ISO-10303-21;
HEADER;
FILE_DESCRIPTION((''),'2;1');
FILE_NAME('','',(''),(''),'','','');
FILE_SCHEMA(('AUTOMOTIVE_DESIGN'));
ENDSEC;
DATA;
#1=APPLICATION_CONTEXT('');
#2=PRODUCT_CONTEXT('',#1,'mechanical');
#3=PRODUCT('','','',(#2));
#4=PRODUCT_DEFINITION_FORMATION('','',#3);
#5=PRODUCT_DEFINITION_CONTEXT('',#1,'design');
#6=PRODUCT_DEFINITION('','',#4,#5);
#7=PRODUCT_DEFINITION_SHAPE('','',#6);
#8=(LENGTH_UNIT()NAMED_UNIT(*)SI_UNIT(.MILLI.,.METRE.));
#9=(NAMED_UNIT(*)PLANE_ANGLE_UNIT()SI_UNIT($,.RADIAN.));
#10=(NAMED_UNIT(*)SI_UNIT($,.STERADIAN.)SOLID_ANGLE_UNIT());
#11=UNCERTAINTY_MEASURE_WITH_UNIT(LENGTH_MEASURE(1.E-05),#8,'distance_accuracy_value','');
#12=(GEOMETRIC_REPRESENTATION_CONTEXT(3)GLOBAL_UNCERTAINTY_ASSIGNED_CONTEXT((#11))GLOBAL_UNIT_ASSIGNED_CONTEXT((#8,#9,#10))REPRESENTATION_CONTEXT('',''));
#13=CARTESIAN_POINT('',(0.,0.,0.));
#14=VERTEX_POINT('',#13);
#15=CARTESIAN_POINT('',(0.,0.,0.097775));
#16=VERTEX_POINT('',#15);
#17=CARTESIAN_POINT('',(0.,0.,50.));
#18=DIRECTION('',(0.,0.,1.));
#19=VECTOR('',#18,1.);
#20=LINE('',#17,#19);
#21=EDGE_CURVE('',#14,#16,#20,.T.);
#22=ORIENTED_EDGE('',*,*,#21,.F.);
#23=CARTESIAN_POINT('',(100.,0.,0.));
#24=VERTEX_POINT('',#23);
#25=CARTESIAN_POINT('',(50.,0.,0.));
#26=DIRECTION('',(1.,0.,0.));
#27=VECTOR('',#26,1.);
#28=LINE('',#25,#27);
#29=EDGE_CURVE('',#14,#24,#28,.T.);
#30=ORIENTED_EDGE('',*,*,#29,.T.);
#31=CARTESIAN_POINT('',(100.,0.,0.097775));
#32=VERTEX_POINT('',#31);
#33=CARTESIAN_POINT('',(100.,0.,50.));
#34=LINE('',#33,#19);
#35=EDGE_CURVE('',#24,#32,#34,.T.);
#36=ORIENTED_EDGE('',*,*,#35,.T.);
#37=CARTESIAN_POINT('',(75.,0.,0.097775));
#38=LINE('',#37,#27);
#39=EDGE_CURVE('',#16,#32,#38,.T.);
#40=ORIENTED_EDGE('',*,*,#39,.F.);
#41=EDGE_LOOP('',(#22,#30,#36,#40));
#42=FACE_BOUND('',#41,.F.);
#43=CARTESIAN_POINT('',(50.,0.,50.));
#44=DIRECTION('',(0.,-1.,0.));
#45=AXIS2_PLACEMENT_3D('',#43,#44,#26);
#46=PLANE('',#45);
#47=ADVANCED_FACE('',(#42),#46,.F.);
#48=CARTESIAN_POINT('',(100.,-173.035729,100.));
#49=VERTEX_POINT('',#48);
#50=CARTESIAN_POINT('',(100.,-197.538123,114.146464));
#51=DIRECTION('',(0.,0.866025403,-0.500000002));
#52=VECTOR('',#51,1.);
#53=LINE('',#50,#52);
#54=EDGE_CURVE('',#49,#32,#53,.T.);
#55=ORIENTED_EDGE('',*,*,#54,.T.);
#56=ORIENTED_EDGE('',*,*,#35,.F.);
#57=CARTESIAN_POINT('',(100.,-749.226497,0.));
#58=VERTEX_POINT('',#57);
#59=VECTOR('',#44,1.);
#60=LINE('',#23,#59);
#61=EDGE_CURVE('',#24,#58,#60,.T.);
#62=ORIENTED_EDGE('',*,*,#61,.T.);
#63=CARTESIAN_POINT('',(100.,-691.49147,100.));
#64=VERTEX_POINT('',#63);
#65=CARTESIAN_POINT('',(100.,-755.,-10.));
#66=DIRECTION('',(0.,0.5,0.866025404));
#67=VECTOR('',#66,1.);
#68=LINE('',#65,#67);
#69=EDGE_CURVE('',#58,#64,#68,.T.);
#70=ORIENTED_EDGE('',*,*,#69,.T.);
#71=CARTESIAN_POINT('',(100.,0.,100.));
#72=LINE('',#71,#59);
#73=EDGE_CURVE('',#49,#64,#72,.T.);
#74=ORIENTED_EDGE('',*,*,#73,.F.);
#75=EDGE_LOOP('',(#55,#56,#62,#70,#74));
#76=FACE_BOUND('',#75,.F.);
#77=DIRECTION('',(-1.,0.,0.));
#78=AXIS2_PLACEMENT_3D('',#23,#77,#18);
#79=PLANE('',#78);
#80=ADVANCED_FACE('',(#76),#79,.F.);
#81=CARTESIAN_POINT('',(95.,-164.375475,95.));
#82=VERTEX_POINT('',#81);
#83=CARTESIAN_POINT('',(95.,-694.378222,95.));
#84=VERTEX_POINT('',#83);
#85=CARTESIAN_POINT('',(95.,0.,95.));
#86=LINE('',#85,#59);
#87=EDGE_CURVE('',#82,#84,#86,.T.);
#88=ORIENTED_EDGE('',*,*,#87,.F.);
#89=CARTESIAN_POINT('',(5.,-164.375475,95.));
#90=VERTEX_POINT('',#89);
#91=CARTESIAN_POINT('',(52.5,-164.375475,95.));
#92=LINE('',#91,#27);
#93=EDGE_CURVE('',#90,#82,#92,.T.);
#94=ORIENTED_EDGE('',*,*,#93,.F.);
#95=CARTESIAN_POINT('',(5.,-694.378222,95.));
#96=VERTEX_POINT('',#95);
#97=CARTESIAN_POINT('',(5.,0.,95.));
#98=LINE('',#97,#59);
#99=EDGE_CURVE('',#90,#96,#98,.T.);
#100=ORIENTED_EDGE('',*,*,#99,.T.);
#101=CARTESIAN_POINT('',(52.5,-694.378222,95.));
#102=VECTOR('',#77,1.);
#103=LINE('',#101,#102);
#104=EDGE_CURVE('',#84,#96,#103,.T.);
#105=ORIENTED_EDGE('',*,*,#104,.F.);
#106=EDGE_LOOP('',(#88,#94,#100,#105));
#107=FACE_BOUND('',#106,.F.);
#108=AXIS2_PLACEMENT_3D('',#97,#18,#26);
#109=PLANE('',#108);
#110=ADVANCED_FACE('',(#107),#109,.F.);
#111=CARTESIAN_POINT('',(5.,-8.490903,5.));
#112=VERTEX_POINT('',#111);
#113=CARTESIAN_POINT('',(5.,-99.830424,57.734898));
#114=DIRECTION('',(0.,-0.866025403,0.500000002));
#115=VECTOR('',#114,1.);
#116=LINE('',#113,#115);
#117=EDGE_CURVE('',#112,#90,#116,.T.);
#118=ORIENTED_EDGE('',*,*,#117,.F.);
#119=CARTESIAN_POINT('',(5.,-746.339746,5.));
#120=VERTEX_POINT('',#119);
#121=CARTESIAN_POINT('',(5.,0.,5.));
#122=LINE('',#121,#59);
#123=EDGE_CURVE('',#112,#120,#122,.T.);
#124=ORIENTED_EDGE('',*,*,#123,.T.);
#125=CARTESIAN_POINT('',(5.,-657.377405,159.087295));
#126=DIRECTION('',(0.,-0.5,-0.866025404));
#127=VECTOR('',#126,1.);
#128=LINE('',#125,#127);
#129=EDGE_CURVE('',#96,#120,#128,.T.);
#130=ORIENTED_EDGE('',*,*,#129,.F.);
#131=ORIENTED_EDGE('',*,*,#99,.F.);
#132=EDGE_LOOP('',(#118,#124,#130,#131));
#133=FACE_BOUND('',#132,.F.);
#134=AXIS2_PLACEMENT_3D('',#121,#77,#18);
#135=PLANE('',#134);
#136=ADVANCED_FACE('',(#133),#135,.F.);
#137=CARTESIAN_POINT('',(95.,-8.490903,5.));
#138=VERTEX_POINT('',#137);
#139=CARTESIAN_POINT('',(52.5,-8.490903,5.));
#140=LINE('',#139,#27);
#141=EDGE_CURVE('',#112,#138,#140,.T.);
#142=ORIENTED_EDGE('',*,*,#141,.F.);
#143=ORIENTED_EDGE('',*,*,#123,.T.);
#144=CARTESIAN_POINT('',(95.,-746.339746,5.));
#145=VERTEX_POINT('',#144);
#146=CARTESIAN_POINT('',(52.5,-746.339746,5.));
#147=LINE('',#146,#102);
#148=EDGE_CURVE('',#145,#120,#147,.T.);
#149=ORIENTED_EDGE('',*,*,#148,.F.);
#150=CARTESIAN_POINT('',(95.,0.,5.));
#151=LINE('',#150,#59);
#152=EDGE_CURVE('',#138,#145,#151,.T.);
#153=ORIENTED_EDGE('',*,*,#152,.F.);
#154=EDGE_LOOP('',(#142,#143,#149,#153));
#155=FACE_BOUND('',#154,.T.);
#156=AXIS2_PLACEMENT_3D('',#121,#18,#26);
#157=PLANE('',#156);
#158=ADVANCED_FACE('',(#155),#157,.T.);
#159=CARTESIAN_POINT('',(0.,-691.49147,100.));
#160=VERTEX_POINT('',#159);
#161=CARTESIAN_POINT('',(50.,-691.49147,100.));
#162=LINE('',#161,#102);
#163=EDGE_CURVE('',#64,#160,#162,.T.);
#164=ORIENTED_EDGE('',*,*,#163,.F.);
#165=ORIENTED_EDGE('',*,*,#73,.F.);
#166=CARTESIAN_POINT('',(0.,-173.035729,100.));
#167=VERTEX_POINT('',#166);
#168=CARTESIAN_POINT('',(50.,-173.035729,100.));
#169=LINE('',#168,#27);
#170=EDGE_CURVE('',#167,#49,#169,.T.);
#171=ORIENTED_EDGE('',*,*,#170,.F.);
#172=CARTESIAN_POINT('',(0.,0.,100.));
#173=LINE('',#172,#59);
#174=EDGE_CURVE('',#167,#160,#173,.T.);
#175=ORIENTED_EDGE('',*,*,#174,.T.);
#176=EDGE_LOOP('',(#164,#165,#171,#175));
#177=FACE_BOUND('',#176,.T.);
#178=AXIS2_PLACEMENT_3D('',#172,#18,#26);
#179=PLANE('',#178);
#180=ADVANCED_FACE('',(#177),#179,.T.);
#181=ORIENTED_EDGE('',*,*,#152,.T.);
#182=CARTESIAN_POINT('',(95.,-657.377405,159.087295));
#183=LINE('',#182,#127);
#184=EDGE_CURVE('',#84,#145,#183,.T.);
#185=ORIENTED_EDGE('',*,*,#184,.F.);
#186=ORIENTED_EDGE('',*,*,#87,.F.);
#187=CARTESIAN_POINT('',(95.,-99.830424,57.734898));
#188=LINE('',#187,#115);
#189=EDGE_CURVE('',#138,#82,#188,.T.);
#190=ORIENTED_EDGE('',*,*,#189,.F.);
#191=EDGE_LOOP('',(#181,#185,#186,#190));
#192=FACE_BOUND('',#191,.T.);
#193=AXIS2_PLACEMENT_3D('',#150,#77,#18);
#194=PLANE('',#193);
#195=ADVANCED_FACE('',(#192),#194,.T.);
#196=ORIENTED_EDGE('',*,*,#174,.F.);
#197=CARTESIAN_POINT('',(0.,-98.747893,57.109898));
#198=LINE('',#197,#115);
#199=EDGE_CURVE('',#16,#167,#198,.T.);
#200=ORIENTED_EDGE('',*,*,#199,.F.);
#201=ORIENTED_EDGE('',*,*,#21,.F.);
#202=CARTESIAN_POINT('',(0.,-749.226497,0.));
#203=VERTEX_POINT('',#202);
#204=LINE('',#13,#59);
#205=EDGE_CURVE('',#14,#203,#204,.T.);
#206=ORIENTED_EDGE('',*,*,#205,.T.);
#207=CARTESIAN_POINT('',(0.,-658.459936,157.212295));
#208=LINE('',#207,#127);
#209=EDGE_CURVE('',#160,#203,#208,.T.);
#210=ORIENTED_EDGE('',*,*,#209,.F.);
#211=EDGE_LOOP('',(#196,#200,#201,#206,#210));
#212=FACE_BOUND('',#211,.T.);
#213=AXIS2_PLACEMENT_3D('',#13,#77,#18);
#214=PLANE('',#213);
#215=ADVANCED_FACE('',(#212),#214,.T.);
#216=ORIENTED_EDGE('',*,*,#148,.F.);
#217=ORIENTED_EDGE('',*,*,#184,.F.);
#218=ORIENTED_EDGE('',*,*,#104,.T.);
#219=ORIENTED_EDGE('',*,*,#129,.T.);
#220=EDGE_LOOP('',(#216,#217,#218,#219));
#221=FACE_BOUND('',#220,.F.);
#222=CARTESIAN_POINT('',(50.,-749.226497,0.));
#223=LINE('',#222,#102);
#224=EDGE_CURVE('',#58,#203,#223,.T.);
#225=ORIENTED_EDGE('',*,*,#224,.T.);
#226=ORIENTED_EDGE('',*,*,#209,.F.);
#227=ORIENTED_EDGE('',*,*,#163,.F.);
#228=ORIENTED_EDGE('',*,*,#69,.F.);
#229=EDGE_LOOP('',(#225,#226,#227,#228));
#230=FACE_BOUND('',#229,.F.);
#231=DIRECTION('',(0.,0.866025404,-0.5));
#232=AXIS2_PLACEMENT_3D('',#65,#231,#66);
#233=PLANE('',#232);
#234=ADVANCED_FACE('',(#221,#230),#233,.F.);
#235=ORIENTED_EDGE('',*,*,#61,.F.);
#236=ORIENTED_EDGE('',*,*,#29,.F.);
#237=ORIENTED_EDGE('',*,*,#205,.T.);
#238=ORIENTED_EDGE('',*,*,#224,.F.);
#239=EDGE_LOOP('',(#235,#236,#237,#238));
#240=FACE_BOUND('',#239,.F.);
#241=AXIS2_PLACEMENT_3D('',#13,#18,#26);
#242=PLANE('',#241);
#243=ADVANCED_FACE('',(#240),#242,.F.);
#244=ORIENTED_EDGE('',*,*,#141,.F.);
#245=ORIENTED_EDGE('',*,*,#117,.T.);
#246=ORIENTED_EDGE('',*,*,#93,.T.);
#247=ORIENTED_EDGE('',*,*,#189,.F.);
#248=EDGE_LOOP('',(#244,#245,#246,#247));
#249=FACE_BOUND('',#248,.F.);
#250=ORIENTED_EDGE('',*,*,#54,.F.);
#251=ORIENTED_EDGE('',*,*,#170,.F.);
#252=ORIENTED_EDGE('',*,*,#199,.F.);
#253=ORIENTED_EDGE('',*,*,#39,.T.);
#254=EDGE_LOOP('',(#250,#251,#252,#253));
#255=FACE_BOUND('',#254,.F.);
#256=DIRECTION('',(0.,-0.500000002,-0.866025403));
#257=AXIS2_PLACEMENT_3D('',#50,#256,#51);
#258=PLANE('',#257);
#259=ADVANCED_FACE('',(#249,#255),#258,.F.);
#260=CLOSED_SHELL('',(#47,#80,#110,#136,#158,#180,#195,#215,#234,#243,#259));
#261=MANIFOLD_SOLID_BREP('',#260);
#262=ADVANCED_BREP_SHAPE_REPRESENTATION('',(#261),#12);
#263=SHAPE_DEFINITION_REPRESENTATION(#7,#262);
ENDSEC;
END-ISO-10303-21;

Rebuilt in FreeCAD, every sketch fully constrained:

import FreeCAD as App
import Part
import Sketcher

V = App.Vector
Q = App.Units.Quantity

doc = App.newDocument("Part")
body = doc.addObject("PartDesign::Body", "Body")

# Sketch on XZ plane
sketch1 = body.newObject("Sketcher::SketchObject", "Sketch")
sketch1.AttachmentSupport = (doc.getObject("XZ_Plane"), [""])
sketch1.MapMode = "FlatFace"
sketch1.addGeometry([
    Part.LineSegment(V(0, 100, 0), V(0, 0, 0)),  # 0
    Part.LineSegment(V(0, 0, 0), V(100, 0, 0)),  # 1
    Part.LineSegment(V(100, 0, 0), V(100, 100, 0)),  # 2
    Part.LineSegment(V(100, 100, 0), V(0, 100, 0)),  # 3
    Part.LineSegment(V(95, 5, 0), V(5, 5, 0)),  # 4
    Part.LineSegment(V(5, 5, 0), V(5, 95, 0)),  # 5
    Part.LineSegment(V(5, 95, 0), V(95, 95, 0)),  # 6
    Part.LineSegment(V(95, 95, 0), V(95, 5, 0)),  # 7
], False)
sketch1.addConstraint([
    Sketcher.Constraint("Coincident", 0, 2, 1, 1),
    Sketcher.Constraint("Coincident", 1, 2, 2, 1),
    Sketcher.Constraint("Coincident", 2, 2, 3, 1),
    Sketcher.Constraint("Coincident", 3, 2, 0, 1),
    Sketcher.Constraint("Coincident", 4, 2, 5, 1),
    Sketcher.Constraint("Coincident", 5, 2, 6, 1),
    Sketcher.Constraint("Coincident", 6, 2, 7, 1),
    Sketcher.Constraint("Coincident", 7, 2, 4, 1),
    Sketcher.Constraint("Vertical", 0),
    Sketcher.Constraint("Horizontal", 1),
    Sketcher.Constraint("Vertical", 2),
    Sketcher.Constraint("Horizontal", 3),
    Sketcher.Constraint("Horizontal", 4),
    Sketcher.Constraint("Vertical", 5),
    Sketcher.Constraint("Horizontal", 6),
    Sketcher.Constraint("Vertical", 7),
    Sketcher.Constraint("Coincident", 0, 2, -1, 1),
    Sketcher.Constraint("Equal", 3, 0),
    Sketcher.Constraint("Equal", 6, 5),
    Sketcher.Constraint("DistanceX", 1, 1, 1, 2, 100.0),
    Sketcher.Constraint("DistanceX", 4, 2, 4, 1, 90.0),
    Sketcher.Constraint("DistanceX", -1, 1, 4, 2, 5.0),
    Sketcher.Constraint("DistanceY", -1, 1, 4, 2, 5.0),
])
pad1 = body.newObject("PartDesign::Pad", "Pad")
pad1.Profile = sketch1
pad1.Length = 750

# Sketch on YZ plane
sketch2 = body.newObject("Sketcher::SketchObject", "Sketch001")
sketch2.AttachmentSupport = (doc.getObject("YZ_Plane"), [""])
sketch2.MapMode = "FlatFace"
sketch2.AttachmentOffset = App.Placement(V(0, 0, 100), App.Rotation())
sketch2.addGeometry([
    Part.LineSegment(V(-680, 120, 0), V(-755, 120, 0)),
    Part.LineSegment(V(-755, 120, 0), V(-755, -10, 0)),
    Part.LineSegment(V(-755, -10, 0), V(-680, 120, 0)),
], False)
sketch2.addConstraint([
    Sketcher.Constraint("Coincident", 0, 2, 1, 1),
    Sketcher.Constraint("Coincident", 1, 2, 2, 1),
    Sketcher.Constraint("Coincident", 2, 2, 0, 1),
    Sketcher.Constraint("Horizontal", 0),
    Sketcher.Constraint("Vertical", 1),
    Sketcher.Constraint("DistanceY", 1, 2, 1, 1, 130.0),
    Sketcher.Constraint("Angle", 2, Q("60 deg")),
    Sketcher.Constraint("DistanceX", 0, 2, -1, 1, 755.0),
    Sketcher.Constraint("DistanceY", -1, 1, 0, 2, 120.0),
])
pocket1 = body.newObject("PartDesign::Pocket", "Pocket")
pocket1.Profile = sketch2
pocket1.Type = "ThroughAll"

# Sketch on YZ plane
sketch3 = body.newObject("Sketcher::SketchObject", "Sketch002")
sketch3.AttachmentSupport = (doc.getObject("YZ_Plane"), [""])
sketch3.MapMode = "FlatFace"
sketch3.AttachmentOffset = App.Placement(V(0, 0, 100), App.Rotation())
sketch3.addGeometry([
    Part.LineSegment(V(0, 114, 0), V(-198, 114, 0)),
    Part.LineSegment(V(-198, 114, 0), V(0, 0, 0)),
    Part.LineSegment(V(0, 0, 0), V(0, 114, 0)),
], False)
sketch3.addConstraint([
    Sketcher.Constraint("Coincident", 0, 2, 1, 1),
    Sketcher.Constraint("Coincident", 1, 2, 2, 1),
    Sketcher.Constraint("Coincident", 2, 2, 0, 1),
    Sketcher.Constraint("Horizontal", 0),
    Sketcher.Constraint("Vertical", 2),
    Sketcher.Constraint("Angle", 1, Q("-30 deg")),
    Sketcher.Constraint("DistanceY", 2, 1, 2, 2, 114.130241),
    Sketcher.Constraint("DistanceX", 0, 2, -1, 1, 197.538123),
    Sketcher.Constraint("DistanceY", -1, 1, 0, 2, 114.146464),
])
pocket2 = body.newObject("PartDesign::Pocket", "Pocket001")
pocket2.Profile = sketch3
pocket2.Type = "ThroughAll"

doc.recompute()
